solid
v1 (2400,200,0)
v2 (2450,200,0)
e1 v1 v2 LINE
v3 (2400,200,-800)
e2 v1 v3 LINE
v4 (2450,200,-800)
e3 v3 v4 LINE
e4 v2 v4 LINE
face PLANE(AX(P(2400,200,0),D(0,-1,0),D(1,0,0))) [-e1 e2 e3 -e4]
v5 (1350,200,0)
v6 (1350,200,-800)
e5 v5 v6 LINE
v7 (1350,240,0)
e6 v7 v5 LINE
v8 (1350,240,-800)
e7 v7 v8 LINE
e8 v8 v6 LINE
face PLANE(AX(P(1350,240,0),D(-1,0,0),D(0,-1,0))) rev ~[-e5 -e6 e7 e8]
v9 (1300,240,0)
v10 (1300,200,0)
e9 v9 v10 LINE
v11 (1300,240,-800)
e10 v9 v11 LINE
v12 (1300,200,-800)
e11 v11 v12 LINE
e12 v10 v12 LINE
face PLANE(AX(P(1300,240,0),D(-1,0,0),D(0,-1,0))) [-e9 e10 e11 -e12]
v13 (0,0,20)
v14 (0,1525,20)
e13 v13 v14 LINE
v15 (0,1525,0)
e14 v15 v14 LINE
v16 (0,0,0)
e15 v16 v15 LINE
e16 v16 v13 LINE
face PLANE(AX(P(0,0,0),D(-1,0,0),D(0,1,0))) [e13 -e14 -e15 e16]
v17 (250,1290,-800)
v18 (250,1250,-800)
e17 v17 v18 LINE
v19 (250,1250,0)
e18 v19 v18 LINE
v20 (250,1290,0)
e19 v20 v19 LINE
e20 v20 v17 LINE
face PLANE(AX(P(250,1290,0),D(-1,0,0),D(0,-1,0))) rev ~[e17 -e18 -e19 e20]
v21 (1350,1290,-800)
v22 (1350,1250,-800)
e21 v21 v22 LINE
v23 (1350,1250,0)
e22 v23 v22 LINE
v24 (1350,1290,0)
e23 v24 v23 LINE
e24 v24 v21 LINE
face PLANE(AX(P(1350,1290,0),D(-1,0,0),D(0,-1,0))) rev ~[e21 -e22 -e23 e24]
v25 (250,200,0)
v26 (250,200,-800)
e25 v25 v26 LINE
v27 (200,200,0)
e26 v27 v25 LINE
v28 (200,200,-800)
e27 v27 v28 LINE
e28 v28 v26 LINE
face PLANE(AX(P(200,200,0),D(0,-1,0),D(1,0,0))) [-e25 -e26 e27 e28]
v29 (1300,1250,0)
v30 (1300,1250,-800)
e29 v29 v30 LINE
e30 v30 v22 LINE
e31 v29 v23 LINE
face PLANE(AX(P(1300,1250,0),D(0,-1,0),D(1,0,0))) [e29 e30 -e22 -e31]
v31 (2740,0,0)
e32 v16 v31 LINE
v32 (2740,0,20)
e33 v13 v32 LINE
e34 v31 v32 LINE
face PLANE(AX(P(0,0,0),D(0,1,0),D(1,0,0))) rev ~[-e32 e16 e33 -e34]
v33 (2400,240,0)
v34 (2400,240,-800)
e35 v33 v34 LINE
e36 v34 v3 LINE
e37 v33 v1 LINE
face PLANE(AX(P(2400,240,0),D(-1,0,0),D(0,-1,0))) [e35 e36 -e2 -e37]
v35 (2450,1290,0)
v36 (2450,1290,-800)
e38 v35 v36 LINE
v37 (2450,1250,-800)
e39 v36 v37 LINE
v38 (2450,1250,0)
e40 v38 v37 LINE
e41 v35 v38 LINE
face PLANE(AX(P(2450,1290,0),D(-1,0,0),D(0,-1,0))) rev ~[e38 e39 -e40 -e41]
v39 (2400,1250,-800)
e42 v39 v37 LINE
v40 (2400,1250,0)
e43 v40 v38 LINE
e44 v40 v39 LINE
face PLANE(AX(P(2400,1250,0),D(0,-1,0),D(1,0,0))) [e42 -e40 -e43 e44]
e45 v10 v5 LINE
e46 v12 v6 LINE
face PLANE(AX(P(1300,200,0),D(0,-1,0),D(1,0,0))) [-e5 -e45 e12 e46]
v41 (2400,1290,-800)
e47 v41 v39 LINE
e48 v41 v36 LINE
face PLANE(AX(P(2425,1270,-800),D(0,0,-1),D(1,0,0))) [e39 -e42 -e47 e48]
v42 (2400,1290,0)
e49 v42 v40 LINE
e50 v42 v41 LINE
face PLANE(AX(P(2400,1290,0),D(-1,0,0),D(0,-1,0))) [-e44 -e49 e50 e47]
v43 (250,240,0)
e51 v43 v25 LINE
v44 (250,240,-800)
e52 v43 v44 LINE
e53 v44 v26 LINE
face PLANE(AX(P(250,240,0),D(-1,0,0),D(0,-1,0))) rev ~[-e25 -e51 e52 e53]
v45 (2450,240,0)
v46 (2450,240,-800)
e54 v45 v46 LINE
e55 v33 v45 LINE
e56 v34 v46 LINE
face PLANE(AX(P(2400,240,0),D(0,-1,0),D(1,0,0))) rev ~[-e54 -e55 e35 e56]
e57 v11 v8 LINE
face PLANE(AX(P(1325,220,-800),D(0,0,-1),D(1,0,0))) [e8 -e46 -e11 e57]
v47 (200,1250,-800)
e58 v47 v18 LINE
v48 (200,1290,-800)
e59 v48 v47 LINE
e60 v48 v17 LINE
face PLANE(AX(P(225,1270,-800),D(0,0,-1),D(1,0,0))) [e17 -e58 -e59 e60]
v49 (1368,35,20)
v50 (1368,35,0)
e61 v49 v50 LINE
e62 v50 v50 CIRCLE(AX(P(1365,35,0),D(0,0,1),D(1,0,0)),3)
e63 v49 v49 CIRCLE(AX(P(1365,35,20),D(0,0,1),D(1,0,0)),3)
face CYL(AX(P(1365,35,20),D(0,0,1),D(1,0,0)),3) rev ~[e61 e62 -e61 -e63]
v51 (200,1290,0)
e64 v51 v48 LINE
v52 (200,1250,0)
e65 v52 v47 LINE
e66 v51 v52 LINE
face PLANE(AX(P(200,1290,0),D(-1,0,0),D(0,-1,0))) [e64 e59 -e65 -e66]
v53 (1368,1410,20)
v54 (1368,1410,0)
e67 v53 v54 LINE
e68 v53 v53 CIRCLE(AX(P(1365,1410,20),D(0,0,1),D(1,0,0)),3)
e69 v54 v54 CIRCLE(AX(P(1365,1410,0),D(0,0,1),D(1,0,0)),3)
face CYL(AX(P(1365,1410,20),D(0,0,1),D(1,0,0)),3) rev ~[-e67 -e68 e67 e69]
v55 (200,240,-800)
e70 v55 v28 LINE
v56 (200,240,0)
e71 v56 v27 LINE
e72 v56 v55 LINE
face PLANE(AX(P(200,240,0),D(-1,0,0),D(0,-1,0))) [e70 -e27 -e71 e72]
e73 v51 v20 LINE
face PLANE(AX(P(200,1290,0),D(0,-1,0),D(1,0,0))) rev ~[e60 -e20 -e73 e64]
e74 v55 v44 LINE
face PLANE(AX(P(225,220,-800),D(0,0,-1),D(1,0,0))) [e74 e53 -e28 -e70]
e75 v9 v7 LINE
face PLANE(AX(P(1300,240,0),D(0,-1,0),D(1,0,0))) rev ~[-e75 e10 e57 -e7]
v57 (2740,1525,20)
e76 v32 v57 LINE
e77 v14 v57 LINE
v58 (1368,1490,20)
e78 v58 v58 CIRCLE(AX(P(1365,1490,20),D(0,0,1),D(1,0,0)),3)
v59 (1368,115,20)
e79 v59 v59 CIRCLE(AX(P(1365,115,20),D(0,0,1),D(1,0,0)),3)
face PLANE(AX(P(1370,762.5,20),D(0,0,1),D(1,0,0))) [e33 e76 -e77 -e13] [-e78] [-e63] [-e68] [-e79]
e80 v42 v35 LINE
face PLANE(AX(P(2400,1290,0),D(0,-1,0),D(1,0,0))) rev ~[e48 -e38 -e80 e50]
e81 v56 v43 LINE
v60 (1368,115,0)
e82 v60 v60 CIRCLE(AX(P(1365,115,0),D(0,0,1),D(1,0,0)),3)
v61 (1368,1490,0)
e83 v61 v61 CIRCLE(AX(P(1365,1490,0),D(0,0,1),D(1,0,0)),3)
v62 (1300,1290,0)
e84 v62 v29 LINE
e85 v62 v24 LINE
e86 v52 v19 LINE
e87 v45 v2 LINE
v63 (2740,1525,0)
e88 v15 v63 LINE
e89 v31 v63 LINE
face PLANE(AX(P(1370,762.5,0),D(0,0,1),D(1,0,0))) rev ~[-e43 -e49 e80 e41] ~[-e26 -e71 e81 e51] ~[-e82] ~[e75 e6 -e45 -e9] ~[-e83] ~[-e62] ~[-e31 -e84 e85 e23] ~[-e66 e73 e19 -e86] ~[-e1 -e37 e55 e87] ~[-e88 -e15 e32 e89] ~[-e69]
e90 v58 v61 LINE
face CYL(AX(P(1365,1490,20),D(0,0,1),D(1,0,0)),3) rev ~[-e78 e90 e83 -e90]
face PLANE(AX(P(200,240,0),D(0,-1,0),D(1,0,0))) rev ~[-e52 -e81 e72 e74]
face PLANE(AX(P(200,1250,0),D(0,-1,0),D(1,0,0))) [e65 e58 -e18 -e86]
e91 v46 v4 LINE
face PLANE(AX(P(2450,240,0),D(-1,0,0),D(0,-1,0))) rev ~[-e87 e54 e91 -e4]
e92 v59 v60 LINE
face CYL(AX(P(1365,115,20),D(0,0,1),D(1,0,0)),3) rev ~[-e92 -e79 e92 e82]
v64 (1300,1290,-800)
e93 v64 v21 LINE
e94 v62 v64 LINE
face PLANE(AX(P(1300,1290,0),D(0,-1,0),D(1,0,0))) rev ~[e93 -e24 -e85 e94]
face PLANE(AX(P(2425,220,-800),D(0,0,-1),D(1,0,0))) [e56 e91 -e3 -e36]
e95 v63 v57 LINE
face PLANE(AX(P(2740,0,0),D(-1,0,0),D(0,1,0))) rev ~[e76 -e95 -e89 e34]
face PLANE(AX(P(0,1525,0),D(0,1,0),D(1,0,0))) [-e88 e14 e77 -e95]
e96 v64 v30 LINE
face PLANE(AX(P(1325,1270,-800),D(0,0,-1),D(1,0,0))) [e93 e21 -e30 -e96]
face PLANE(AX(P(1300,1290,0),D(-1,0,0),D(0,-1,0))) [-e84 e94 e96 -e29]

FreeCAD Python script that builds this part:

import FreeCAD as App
import Part
import Sketcher
from FreeCAD import Vector
Q = App.Units.Quantity


def add_polygon(sketch, points):
    """Adds a closed chain of lines whose ends are joined by coincident constraints."""
    first, n = sketch.GeometryCount, len(points)
    for a, b in zip(points, points[1:] + points[:1]):
        sketch.addGeometry(Part.LineSegment(App.Vector(*a, 0), App.Vector(*b, 0)), False)
    for i in range(n):
        sketch.addConstraint(Sketcher.Constraint("Coincident", first + i, 2, first + (i + 1) % n, 1))

doc = App.newDocument("Part")
params = doc.addObject("Spreadsheet::Sheet", "Params")
for row, (alias, value) in enumerate([
    ("sketch1_width", "2740 mm"),
    ("sketch1_height", "1525 mm"),
    ("pad1_length", "20 mm"),
    ("sketch2_diameter", "6 mm"),
    ("pocket1_length", "25 mm"),
    ("sketch3_width", "50 mm"),
    ("sketch3_height", "40 mm"),
    ("pad2_length", "800 mm"),
], start=1):
    params.set(f"A{row}", alias)
    params.set(f"B{row}", "=" + value)
    params.setAlias(f"B{row}", alias)

body = doc.addObject("PartDesign::Body", "Body")

sketch1 = doc.addObject("Sketcher::SketchObject", "Sketch")
body.addObject(sketch1)
sketch1.AttachmentSupport = (doc.XY_Plane, [""])
sketch1.MapMode = "FlatFace"
add_polygon(sketch1, [(0, 1525), (0, 0), (2740, 0), (2740, 1525)])
sketch1.addConstraint([
    Sketcher.Constraint("Vertical", 0),
    Sketcher.Constraint("Horizontal", 1),
    Sketcher.Constraint("Vertical", 2),
    Sketcher.Constraint("Horizontal", 3),
    Sketcher.Constraint("Coincident", 0, 2, -1, 1),
    Sketcher.Constraint("DistanceX", 1, 1, 1, 2, Q("2740 mm")),
    Sketcher.Constraint("DistanceY", 0, 2, 0, 1, Q("1525 mm")),
])
sketch1.setExpression("Constraints[9]", "Params.sketch1_width")
sketch1.setExpression("Constraints[10]", "Params.sketch1_height")
pad1 = doc.addObject("PartDesign::Pad", "Pad")
body.addObject(pad1)
pad1.Profile = sketch1
pad1.setExpression("Length", "Params.pad1_length")

sketch2 = doc.addObject("Sketcher::SketchObject", "Sketch001")
body.addObject(sketch2)
sketch2.AttachmentSupport = (doc.XY_Plane, [""])
sketch2.MapMode = "FlatFace"
sketch2.AttachmentOffset = App.Placement(Vector(0, 0, 20), App.Rotation())
sketch2.addGeometry([
    Part.Circle(Vector(1365, 1490, 0), Vector(0, 0, 1), 3),
    Part.Circle(Vector(1365, 1410, 0), Vector(0, 0, 1), 3),
    Part.Circle(Vector(1365, 35, 0), Vector(0, 0, 1), 3),
    Part.Circle(Vector(1365, 115, 0), Vector(0, 0, 1), 3),
], False)
sketch2.addConstraint([
    Sketcher.Constraint("Equal", 0, 1),
    Sketcher.Constraint("Equal", 1, 2),
    Sketcher.Constraint("Equal", 2, 3),
    Sketcher.Constraint("Vertical", 0, 3, 1, 3),
    Sketcher.Constraint("Vertical", 1, 3, 2, 3),
    Sketcher.Constraint("Vertical", 2, 3, 3, 3),
    Sketcher.Constraint("Diameter", 0, Q("6 mm")),
    Sketcher.Constraint("DistanceX", -1, 1, 0, 3, Q("1365 mm")),
    Sketcher.Constraint("DistanceY", -1, 1, 0, 3, Q("1490 mm")),
    Sketcher.Constraint("DistanceY", -1, 1, 1, 3, Q("1410 mm")),
    Sketcher.Constraint("DistanceY", -1, 1, 2, 3, Q("35 mm")),
    Sketcher.Constraint("DistanceY", -1, 1, 3, 3, Q("115 mm")),
])
sketch2.setExpression("Constraints[6]", "Params.sketch2_diameter")
pocket1 = doc.addObject("PartDesign::Pocket", "Pocket")
body.addObject(pocket1)
pocket1.Profile = sketch2
pocket1.setExpression("Length", "Params.pocket1_length")

sketch3 = doc.addObject("Sketcher::SketchObject", "Sketch002")
body.addObject(sketch3)
sketch3.AttachmentSupport = (doc.XY_Plane, [""])
sketch3.MapMode = "FlatFace"
add_polygon(sketch3, [(200, 200), (200, 240), (250, 240), (250, 200)])
add_polygon(sketch3, [(200, 1250), (200, 1290), (250, 1290), (250, 1250)])
add_polygon(sketch3, [(1300, 200), (1300, 240), (1350, 240), (1350, 200)])
add_polygon(sketch3, [(1300, 1250), (1300, 1290), (1350, 1290), (1350, 1250)])
add_polygon(sketch3, [(2400, 200), (2400, 240), (2450, 240), (2450, 200)])
add_polygon(sketch3, [(2400, 1250), (2400, 1290), (2450, 1290), (2450, 1250)])
sketch3.addConstraint([
    Sketcher.Constraint("Vertical", 0),
    Sketcher.Constraint("Horizontal", 1),
    Sketcher.Constraint("Vertical", 2),
    Sketcher.Constraint("Horizontal", 3),
    Sketcher.Constraint("Vertical", 4),
    Sketcher.Constraint("Horizontal", 5),
    Sketcher.Constraint("Vertical", 6),
    Sketcher.Constraint("Horizontal", 7),
    Sketcher.Constraint("Vertical", 8),
    Sketcher.Constraint("Horizontal", 9),
    Sketcher.Constraint("Vertical", 10),
    Sketcher.Constraint("Horizontal", 11),
    Sketcher.Constraint("Vertical", 12),
    Sketcher.Constraint("Horizontal", 13),
    Sketcher.Constraint("Vertical", 14),
    Sketcher.Constraint("Horizontal", 15),
    Sketcher.Constraint("Vertical", 16),
    Sketcher.Constraint("Horizontal", 17),
    Sketcher.Constraint("Vertical", 18),
    Sketcher.Constraint("Horizontal", 19),
    Sketcher.Constraint("Vertical", 20),
    Sketcher.Constraint("Horizontal", 21),
    Sketcher.Constraint("Vertical", 22),
    Sketcher.Constraint("Horizontal", 23),
    Sketcher.Constraint("Horizontal", 1, 2, 8, 2),
    Sketcher.Constraint("Horizontal", 3, 2, 10, 2),
    Sketcher.Constraint("Horizontal", 5, 2, 12, 2),
    Sketcher.Constraint("Horizontal", 7, 2, 14, 2),
    Sketcher.Constraint("Horizontal", 9, 2, 16, 2),
    Sketcher.Constraint("Horizontal", 11, 2, 18, 2),
    Sketcher.Constraint("Horizontal", 13, 2, 20, 2),
    Sketcher.Constraint("Horizontal", 15, 2, 22, 2),
    Sketcher.Constraint("Vertical", 3, 2, 4, 2),
    Sketcher.Constraint("Vertical", 2, 2, 5, 2),
    Sketcher.Constraint("Vertical", 11, 2, 12, 2),
    Sketcher.Constraint("Vertical", 10, 2, 13, 2),
    Sketcher.Constraint("Vertical", 19, 2, 20, 2),
    Sketcher.Constraint("Vertical", 18, 2, 21, 2),
    Sketcher.Constraint("Equal", 7, 9),
    Sketcher.Constraint("Equal", 15, 17),
    Sketcher.Constraint("Equal", 2, 4),
    Sketcher.Constraint("DistanceX", 1, 1, 1, 2, Q("50 mm")),
    Sketcher.Constraint("DistanceY", 0, 1, 0, 2, Q("40 mm")),
    Sketcher.Constraint("DistanceX", -1, 1, 0, 2, Q("200 mm")),
    Sketcher.Constraint("DistanceY", -1, 1, 0, 2, Q("240 mm")),
    Sketcher.Constraint("DistanceY", -1, 1, 4, 2, Q("1290 mm")),
    Sketcher.Constraint("DistanceX", -1, 1, 8, 2, Q("1300 mm")),
    Sketcher.Constraint("DistanceX", -1, 1, 16, 2, Q("2400 mm")),
])
sketch3.setExpression("Constraints[65]", "Params.sketch3_width")
sketch3.setExpression("Constraints[66]", "Params.sketch3_height")
pad2 = doc.addObject("PartDesign::Pad", "Pad001")
body.addObject(pad2)
pad2.Profile = sketch3
pad2.setExpression("Length", "Params.pad2_length")
pad2.Reversed = True

doc.recompute()
